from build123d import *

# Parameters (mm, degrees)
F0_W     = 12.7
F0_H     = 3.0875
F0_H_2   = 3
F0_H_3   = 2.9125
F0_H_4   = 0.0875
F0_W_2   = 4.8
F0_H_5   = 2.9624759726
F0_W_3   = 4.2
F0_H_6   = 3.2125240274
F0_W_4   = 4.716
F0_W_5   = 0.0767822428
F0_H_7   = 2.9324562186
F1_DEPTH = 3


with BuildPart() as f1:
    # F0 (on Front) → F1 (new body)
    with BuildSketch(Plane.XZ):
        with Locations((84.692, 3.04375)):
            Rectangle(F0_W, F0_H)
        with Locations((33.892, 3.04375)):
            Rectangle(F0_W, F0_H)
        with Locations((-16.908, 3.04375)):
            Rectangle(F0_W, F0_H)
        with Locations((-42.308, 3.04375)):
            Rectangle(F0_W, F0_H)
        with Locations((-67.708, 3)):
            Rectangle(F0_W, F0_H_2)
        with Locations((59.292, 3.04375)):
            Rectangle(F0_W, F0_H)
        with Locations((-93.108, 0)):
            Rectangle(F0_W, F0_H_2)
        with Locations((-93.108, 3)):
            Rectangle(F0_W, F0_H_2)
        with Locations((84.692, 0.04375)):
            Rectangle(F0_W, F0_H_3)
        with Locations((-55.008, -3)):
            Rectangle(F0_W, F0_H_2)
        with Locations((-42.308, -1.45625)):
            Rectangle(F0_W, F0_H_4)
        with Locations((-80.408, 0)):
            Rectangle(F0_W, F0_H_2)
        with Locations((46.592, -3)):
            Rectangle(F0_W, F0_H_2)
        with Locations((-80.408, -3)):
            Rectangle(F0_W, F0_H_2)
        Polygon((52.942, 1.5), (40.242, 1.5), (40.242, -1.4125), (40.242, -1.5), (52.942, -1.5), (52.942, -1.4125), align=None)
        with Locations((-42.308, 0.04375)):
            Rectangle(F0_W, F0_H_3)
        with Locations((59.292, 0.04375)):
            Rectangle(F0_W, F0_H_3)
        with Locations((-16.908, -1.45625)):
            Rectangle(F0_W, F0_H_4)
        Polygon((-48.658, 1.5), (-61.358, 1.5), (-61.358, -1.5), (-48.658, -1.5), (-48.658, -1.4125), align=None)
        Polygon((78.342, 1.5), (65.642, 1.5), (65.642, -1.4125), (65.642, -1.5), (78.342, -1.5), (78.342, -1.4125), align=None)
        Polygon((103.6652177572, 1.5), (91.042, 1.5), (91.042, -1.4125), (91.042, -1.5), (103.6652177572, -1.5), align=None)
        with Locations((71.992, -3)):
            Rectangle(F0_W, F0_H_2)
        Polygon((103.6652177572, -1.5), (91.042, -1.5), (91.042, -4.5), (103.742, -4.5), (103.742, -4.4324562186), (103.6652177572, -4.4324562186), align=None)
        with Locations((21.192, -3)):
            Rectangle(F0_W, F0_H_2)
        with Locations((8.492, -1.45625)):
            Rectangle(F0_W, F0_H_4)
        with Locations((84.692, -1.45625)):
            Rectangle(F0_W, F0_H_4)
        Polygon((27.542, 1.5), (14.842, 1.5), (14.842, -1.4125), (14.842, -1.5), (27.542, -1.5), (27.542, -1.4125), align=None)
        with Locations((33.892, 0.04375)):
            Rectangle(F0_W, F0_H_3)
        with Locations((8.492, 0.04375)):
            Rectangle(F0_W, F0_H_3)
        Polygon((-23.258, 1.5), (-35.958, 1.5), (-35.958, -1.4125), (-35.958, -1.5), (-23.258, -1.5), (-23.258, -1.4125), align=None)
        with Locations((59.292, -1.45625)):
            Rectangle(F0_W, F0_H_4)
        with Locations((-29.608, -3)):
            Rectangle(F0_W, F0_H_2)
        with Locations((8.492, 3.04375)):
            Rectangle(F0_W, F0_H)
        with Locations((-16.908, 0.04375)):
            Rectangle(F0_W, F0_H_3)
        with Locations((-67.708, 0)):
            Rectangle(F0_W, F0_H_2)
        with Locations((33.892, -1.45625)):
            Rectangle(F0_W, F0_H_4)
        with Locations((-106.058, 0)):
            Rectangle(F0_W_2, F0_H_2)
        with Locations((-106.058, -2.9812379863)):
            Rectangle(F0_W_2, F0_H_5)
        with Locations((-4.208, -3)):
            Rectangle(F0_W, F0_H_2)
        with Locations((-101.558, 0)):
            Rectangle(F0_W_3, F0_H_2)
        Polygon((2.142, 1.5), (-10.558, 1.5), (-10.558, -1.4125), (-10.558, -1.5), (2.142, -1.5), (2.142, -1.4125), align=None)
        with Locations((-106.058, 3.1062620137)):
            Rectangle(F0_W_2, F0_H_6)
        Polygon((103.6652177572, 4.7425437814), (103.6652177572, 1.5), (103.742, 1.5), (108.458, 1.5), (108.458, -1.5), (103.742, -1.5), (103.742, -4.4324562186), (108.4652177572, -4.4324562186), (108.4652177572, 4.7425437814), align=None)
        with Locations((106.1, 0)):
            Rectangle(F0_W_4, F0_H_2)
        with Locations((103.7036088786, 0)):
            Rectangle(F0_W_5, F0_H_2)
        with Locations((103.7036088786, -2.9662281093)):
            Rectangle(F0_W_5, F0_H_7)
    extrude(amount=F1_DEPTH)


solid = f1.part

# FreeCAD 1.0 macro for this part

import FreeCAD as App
import Part
import Sketcher
Q = App.Units.Quantity


def add_polygon(sketch, points):
    """Adds a closed chain of lines whose ends are joined by coincident constraints."""
    first, n = sketch.GeometryCount, len(points)
    for a, b in zip(points, points[1:] + points[:1]):
        sketch.addGeometry(Part.LineSegment(App.Vector(*a, 0), App.Vector(*b, 0)), False)
    for i in range(n):
        sketch.addConstraint(Sketcher.Constraint("Coincident", first + i, 2, first + (i + 1) % n, 1))

doc = App.newDocument("Part")
params = doc.addObject("Spreadsheet::Sheet", "Params")
for row, (alias, value) in enumerate([
    ("sketch1_height", "3 mm"),
    ("sketch1_width", "4.8 mm"),
    ("sketch1_width2", "12.7 mm"),
    ("sketch1_width3", "4.2 mm"),
    ("pad1_length", "3 mm"),
], start=1):
    params.set(f"A{row}", alias)
    params.set(f"B{row}", "=" + value)
    params.setAlias(f"B{row}", alias)

body = doc.addObject("PartDesign::Body", "Body")

# Sketch on XZ plane
sketch1 = body.newObject("Sketcher::SketchObject", "Sketch")
sketch1.AttachmentSupport = (doc.getObject("XZ_Plane"), [""])
sketch1.MapMode = "FlatFace"
add_polygon(sketch1, [(103.742, -4.5), (103.742, -4.432456), (108.465218, -4.432456), (108.465218, 4.742544), (103.665218, 4.742544), (103.665218, 1.5), (91.042, 1.5), (91.042, 4.5875), (78.342, 4.5875), (78.342, 1.5), (65.642, 1.5), (65.642, 4.5875), (52.942, 4.5875), (52.942, 1.5), (40.242, 1.5), (40.242, 4.5875), (27.542, 4.5875), (27.542, 1.5), (14.842, 1.5), (14.842, 4.5875), (2.142, 4.5875), (2.142, 1.5), (-10.558, 1.5), (-10.558, 4.5875), (-23.258, 4.5875), (-23.258, 1.5), (-35.958, 1.5), (-35.958, 4.5875), (-48.658, 4.5875), (-48.658, 1.5), (-61.358, 1.5), (-61.358, 4.5), (-74.058, 4.5), (-74.058, 1.5), (-86.758, 1.5), (-86.758, 4.5), (-99.458, 4.5), (-99.458, 1.5), (-103.658, 1.5), (-103.658, 4.712524), (-108.458, 4.712524), (-108.458, -4.462476), (-103.658, -4.462476), (-103.658, -1.5), (-86.758, -1.5), (-86.758, -4.5), (-74.058, -4.5), (-74.058, -1.5), (-61.358, -1.5), (-61.358, -4.5), (-48.658, -4.5), (-48.658, -1.5), (-35.958, -1.5), (-35.958, -4.5), (-23.258, -4.5), (-23.258, -1.5), (-10.558, -1.5), (-10.558, -4.5), (2.142, -4.5), (2.142, -1.5), (14.842, -1.5), (14.842, -4.5), (27.542, -4.5), (27.542, -1.5), (40.242, -1.5), (40.242, -4.5), (52.942, -4.5), (52.942, -1.5), (65.642, -1.5), (65.642, -4.5), (78.342, -4.5), (78.342, -1.5), (91.042, -1.5), (91.042, -4.5)])  # lines 0-73
sketch1.addConstraint(Sketcher.Constraint("Vertical", 0))
sketch1.addConstraint(Sketcher.Constraint("Horizontal", 1))
sketch1.addConstraint(Sketcher.Constraint("Vertical", 2))
sketch1.addConstraint(Sketcher.Constraint("Horizontal", 3))
sketch1.addConstraint(Sketcher.Constraint("Vertical", 4))
sketch1.addConstraint(Sketcher.Constraint("Horizontal", 5))
sketch1.addConstraint(Sketcher.Constraint("Vertical", 6))
sketch1.addConstraint(Sketcher.Constraint("Horizontal", 7))
sketch1.addConstraint(Sketcher.Constraint("Vertical", 8))
sketch1.addConstraint(Sketcher.Constraint("Horizontal", 9))
sketch1.addConstraint(Sketcher.Constraint("Vertical", 10))
sketch1.addConstraint(Sketcher.Constraint("Horizontal", 11))
sketch1.addConstraint(Sketcher.Constraint("Vertical", 12))
sketch1.addConstraint(Sketcher.Constraint("Horizontal", 13))
sketch1.addConstraint(Sketcher.Constraint("Vertical", 14))
sketch1.addConstraint(Sketcher.Constraint("Horizontal", 15))
sketch1.addConstraint(Sketcher.Constraint("Vertical", 16))
sketch1.addConstraint(Sketcher.Constraint("Horizontal", 17))
sketch1.addConstraint(Sketcher.Constraint("Vertical", 18))
sketch1.addConstraint(Sketcher.Constraint("Horizontal", 19))
sketch1.addConstraint(Sketcher.Constraint("Vertical", 20))
sketch1.addConstraint(Sketcher.Constraint("Horizontal", 21))
sketch1.addConstraint(Sketcher.Constraint("Vertical", 22))
sketch1.addConstraint(Sketcher.Constraint("Horizontal", 23))
sketch1.addConstraint(Sketcher.Constraint("Vertical", 24))
sketch1.addConstraint(Sketcher.Constraint("Horizontal", 25))
sketch1.addConstraint(Sketcher.Constraint("Vertical", 26))
sketch1.addConstraint(Sketcher.Constraint("Horizontal", 27))
sketch1.addConstraint(Sketcher.Constraint("Vertical", 28))
sketch1.addConstraint(Sketcher.Constraint("Horizontal", 29))
sketch1.addConstraint(Sketcher.Constraint("Vertical", 30))
sketch1.addConstraint(Sketcher.Constraint("Horizontal", 31))
sketch1.addConstraint(Sketcher.Constraint("Vertical", 32))
sketch1.addConstraint(Sketcher.Constraint("Horizontal", 33))
sketch1.addConstraint(Sketcher.Constraint("Vertical", 34))
sketch1.addConstraint(Sketcher.Constraint("Horizontal", 35))
sketch1.addConstraint(Sketcher.Constraint("Vertical", 36))
sketch1.addConstraint(Sketcher.Constraint("Horizontal", 37))
sketch1.addConstraint(Sketcher.Constraint("Vertical", 38))
sketch1.addConstraint(Sketcher.Constraint("Horizontal", 39))
sketch1.addConstraint(Sketcher.Constraint("Vertical", 40))
sketch1.addConstraint(Sketcher.Constraint("Horizontal", 41))
sketch1.addConstraint(Sketcher.Constraint("Vertical", 42))
sketch1.addConstraint(Sketcher.Constraint("Horizontal", 43))
sketch1.addConstraint(Sketcher.Constraint("Vertical", 44))
sketch1.addConstraint(Sketcher.Constraint("Horizontal", 45))
sketch1.addConstraint(Sketcher.Constraint("Vertical", 46))
sketch1.addConstraint(Sketcher.Constraint("Horizontal", 47))
sketch1.addConstraint(Sketcher.Constraint("Vertical", 48))
sketch1.addConstraint(Sketcher.Constraint("Horizontal", 49))
sketch1.addConstraint(Sketcher.Constraint("Vertical", 50))
sketch1.addConstraint(Sketcher.Constraint("Horizontal", 51))
sketch1.addConstraint(Sketcher.Constraint("Vertical", 52))
sketch1.addConstraint(Sketcher.Constraint("Horizontal", 53))
sketch1.addConstraint(Sketcher.Constraint("Vertical", 54))
sketch1.addConstraint(Sketcher.Constraint("Horizontal", 55))
sketch1.addConstraint(Sketcher.Constraint("Vertical", 56))
sketch1.addConstraint(Sketcher.Constraint("Horizontal", 57))
sketch1.addConstraint(Sketcher.Constraint("Vertical", 58))
sketch1.addConstraint(Sketcher.Constraint("Horizontal", 59))
sketch1.addConstraint(Sketcher.Constraint("Vertical", 60))
sketch1.addConstraint(Sketcher.Constraint("Horizontal", 61))
sketch1.addConstraint(Sketcher.Constraint("Vertical", 62))
sketch1.addConstraint(Sketcher.Constraint("Horizontal", 63))
sketch1.addConstraint(Sketcher.Constraint("Vertical", 64))
sketch1.addConstraint(Sketcher.Constraint("Horizontal", 65))
sketch1.addConstraint(Sketcher.Constraint("Vertical", 66))
sketch1.addConstraint(Sketcher.Constraint("Horizontal", 67))
sketch1.addConstraint(Sketcher.Constraint("Vertical", 68))
sketch1.addConstraint(Sketcher.Constraint("Horizontal", 69))
sketch1.addConstraint(Sketcher.Constraint("Vertical", 70))
sketch1.addConstraint(Sketcher.Constraint("Horizontal", 71))
sketch1.addConstraint(Sketcher.Constraint("Vertical", 72))
sketch1.addConstraint(Sketcher.Constraint("Horizontal", 73))
sketch1.addConstraint(Sketcher.Constraint("Symmetric", 37, 2, 42, 2, -1))
sketch1.addConstraint(Sketcher.Constraint("Symmetric", 33, 2, 43, 2, -1))
sketch1.addConstraint(Sketcher.Constraint("Symmetric", 31, 2, 45, 2, -1))
sketch1.addConstraint(Sketcher.Constraint("Symmetric", 29, 2, 47, 2, -1))
sketch1.addConstraint(Sketcher.Constraint("Symmetric", 28, 2, 50, 2, -1))
sketch1.addConstraint(Sketcher.Constraint("Symmetric", 25, 2, 51, 2, -1))
sketch1.addConstraint(Sketcher.Constraint("Symmetric", 24, 2, 54, 2, -1))
sketch1.addConstraint(Sketcher.Constraint("Symmetric", 21, 2, 55, 2, -1))
sketch1.addConstraint(Sketcher.Constraint("Symmetric", 20, 2, 58, 2, -1))
sketch1.addConstraint(Sketcher.Constraint("Symmetric", 17, 2, 59, 2, -1))
sketch1.addConstraint(Sketcher.Constraint("Symmetric", 16, 2, 62, 2, -1))
sketch1.addConstraint(Sketcher.Constraint("Symmetric", 13, 2, 63, 2, -1))
sketch1.addConstraint(Sketcher.Constraint("Symmetric", 12, 2, 66, 2, -1))
sketch1.addConstraint(Sketcher.Constraint("Symmetric", 9, 2, 67, 2, -1))
sketch1.addConstraint(Sketcher.Constraint("Symmetric", 8, 2, 70, 2, -1))
sketch1.addConstraint(Sketcher.Constraint("Symmetric", 5, 2, 71, 2, -1))
sketch1.addConstraint(Sketcher.Constraint("Horizontal", 7, 2, 10, 2))
sketch1.addConstraint(Sketcher.Constraint("Horizontal", 11, 2, 14, 2))
sketch1.addConstraint(Sketcher.Constraint("Horizontal", 15, 2, 18, 2))
sketch1.addConstraint(Sketcher.Constraint("Horizontal", 19, 2, 22, 2))
sketch1.addConstraint(Sketcher.Constraint("Horizontal", 23, 2, 26, 2))
sketch1.addConstraint(Sketcher.Constraint("Horizontal", 29, 2, 32, 2))
sketch1.addConstraint(Sketcher.Constraint("Horizontal", 31, 2, 34, 2))
sketch1.addConstraint(Sketcher.Constraint("Horizontal", 45, 2, 48, 2))
sketch1.addConstraint(Sketcher.Constraint("Horizontal", 49, 2, 52, 2))
sketch1.addConstraint(Sketcher.Constraint("Horizontal", 53, 2, 56, 2))
sketch1.addConstraint(Sketcher.Constraint("Horizontal", 57, 2, 60, 2))
sketch1.addConstraint(Sketcher.Constraint("Horizontal", 61, 2, 64, 2))
sketch1.addConstraint(Sketcher.Constraint("Horizontal", 65, 2, 68, 2))
sketch1.addConstraint(Sketcher.Constraint("Horizontal", 69, 2, 72, 2))
sketch1.addConstraint(Sketcher.Constraint("Equal", 7, 9))
sketch1.addConstraint(Sketcher.Constraint("Equal", 9, 11))
sketch1.addConstraint(Sketcher.Constraint("Equal", 11, 13))
sketch1.addConstraint(Sketcher.Constraint("Equal", 13, 15))
sketch1.addConstraint(Sketcher.Constraint("Equal", 15, 17))
sketch1.addConstraint(Sketcher.Constraint("Equal", 17, 19))
sketch1.addConstraint(Sketcher.Constraint("Equal", 19, 21))
sketch1.addConstraint(Sketcher.Constraint("Equal", 21, 23))
sketch1.addConstraint(Sketcher.Constraint("Equal", 23, 25))
sketch1.addConstraint(Sketcher.Constraint("Equal", 25, 27))
sketch1.addConstraint(Sketcher.Constraint("Equal", 27, 29))
sketch1.addConstraint(Sketcher.Constraint("Equal", 29, 31))
sketch1.addConstraint(Sketcher.Constraint("Equal", 31, 33))
sketch1.addConstraint(Sketcher.Constraint("Equal", 33, 35))
sketch1.addConstraint(Sketcher.Constraint("Equal", 3, 39))
sketch1.addConstraint(Sketcher.Constraint("Equal", 71, 73))
sketch1.addConstraint(Sketcher.Constraint("Equal", 2, 40))
sketch1.addConstraint(Sketcher.Constraint("DistanceY", 30, 1, 30, 2, Q("3 mm")))
sketch1.addConstraint(Sketcher.Constraint("DistanceX", 3, 2, 3, 1, Q("4.8 mm")))
sketch1.addConstraint(Sketcher.Constraint("DistanceX", 7, 2, 7, 1, Q("12.7 mm")))
sketch1.addConstraint(Sketcher.Constraint("DistanceX", 37, 2, 37, 1, Q("4.2 mm")))
sketch1.addConstraint(Sketcher.Constraint("DistanceY", -1, 1, 4, 2, Q("1.5 mm")))
sketch1.addConstraint(Sketcher.Constraint("DistanceY", 2, 1, 2, 2, Q("9.175 mm")))
sketch1.addConstraint(Sketcher.Constraint("DistanceY", 6, 1, 6, 2, Q("3.0875 mm")))
sketch1.addConstraint(Sketcher.Constraint("DistanceX", -1, 1, 0, 2, Q("103.742 mm")))
sketch1.addConstraint(Sketcher.Constraint("DistanceX", 1, 1, 1, 2, Q("4.723218 mm")))
sketch1.addConstraint(Sketcher.Constraint("DistanceY", 0, 1, 0, 2, Q("0.067544 mm")))
sketch1.addConstraint(Sketcher.Constraint("DistanceY", 38, 1, 38, 2, Q("3.212524 mm")))
sketch1.setExpression("Constraints[195]", "Params.sketch1_height")
sketch1.setExpression("Constraints[196]", "Params.sketch1_width")
sketch1.setExpression("Constraints[197]", "Params.sketch1_width2")
sketch1.setExpression("Constraints[198]", "Params.sketch1_width3")
pad1 = body.newObject("PartDesign::Pad", "Pad")
pad1.Profile = sketch1
pad1.setExpression("Length", "Params.pad1_length")

doc.recompute()
